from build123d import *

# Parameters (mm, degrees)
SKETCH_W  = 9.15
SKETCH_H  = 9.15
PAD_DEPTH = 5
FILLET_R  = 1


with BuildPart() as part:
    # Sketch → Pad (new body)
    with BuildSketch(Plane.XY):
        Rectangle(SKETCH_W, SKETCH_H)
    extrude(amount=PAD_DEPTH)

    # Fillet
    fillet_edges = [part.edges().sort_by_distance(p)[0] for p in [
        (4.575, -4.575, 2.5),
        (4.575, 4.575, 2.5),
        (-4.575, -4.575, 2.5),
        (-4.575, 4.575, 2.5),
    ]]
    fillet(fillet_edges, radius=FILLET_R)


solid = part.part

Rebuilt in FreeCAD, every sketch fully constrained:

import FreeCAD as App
import Part
import Sketcher
Q = App.Units.Quantity


def edges_at(feature, points):
    """Names of the edges that pass closest to the given points."""
    edges = feature.Shape.Edges
    near = lambda p: min(range(len(edges)), key=lambda i: edges[i].distToShape(Part.Vertex(*p))[0])
    return sorted({f"Edge{near(p) + 1}" for p in points})

doc = App.newDocument("Part")
params = doc.addObject("Spreadsheet::Sheet", "Params")
for row, (alias, value) in enumerate([
    ("sketch1_width", "9.15 mm"),
    ("pad1_length", "5 mm"),
    ("fillet_radius", "1 mm"),
], start=1):
    params.set(f"A{row}", alias)
    params.set(f"B{row}", "=" + value)
    params.setAlias(f"B{row}", alias)

body = doc.addObject("PartDesign::Body", "Body")

sketch1 = doc.addObject("Sketcher::SketchObject", "Sketch")
body.addObject(sketch1)
sketch1.AttachmentSupport = (doc.XY_Plane, [""])
sketch1.MapMode = "FlatFace"
sketch1.addGeometry([
    Part.LineSegment(App.Vector(-5, 5, 0), App.Vector(-5, -5, 0)),
    Part.LineSegment(App.Vector(-5, -5, 0), App.Vector(5, -5, 0)),
    Part.LineSegment(App.Vector(5, -5, 0), App.Vector(5, 5, 0)),
    Part.LineSegment(App.Vector(5, 5, 0), App.Vector(-5, 5, 0)),
], False)
sketch1.addConstraint([
    Sketcher.Constraint("Coincident", 0, 2, 1, 1),
    Sketcher.Constraint("Coincident", 1, 2, 2, 1),
    Sketcher.Constraint("Coincident", 2, 2, 3, 1),
    Sketcher.Constraint("Coincident", 3, 2, 0, 1),
    Sketcher.Constraint("Vertical", 0),
    Sketcher.Constraint("Horizontal", 1),
    Sketcher.Constraint("Vertical", 2),
    Sketcher.Constraint("Horizontal", 3),
    Sketcher.Constraint("Symmetric", 0, 2, 2, 2, -1, 1),
    Sketcher.Constraint("Equal", 3, 0),
    Sketcher.Constraint("DistanceX", 1, 1, 1, 2, Q("9.15 mm")),
])
sketch1.setExpression("Constraints[10]", "Params.sketch1_width")
pad1 = doc.addObject("PartDesign::Pad", "Pad")
body.addObject(pad1)
pad1.Profile = sketch1
pad1.setExpression("Length", "Params.pad1_length")
doc.recompute()

fillet = doc.addObject("PartDesign::Fillet", "Fillet")
body.addObject(fillet)
fillet.Base = (pad1, edges_at(pad1, [
    (4.575, -4.575, 2.5),
    (4.575, 4.575, 2.5),
    (-4.575, -4.575, 2.5),
    (-4.575, 4.575, 2.5),
]))
fillet.setExpression("Radius", "Params.fillet_radius")

doc.recompute()
